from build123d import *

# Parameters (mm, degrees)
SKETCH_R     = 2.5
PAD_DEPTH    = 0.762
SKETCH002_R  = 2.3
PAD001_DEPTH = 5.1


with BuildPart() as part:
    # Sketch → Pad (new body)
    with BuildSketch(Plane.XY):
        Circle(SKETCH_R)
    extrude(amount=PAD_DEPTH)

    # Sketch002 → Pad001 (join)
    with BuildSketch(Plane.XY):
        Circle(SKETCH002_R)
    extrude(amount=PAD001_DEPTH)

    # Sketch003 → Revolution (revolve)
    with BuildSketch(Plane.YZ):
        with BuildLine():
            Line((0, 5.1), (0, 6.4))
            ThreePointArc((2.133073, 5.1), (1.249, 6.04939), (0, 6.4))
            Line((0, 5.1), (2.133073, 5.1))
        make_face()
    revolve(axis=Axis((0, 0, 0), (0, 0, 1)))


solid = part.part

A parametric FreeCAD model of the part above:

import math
import FreeCAD as App
import Part
import Sketcher

V = App.Vector

doc = App.newDocument("Part")
body = doc.addObject("PartDesign::Body", "Body")

# Sketch on XY plane
sketch1 = body.newObject("Sketcher::SketchObject", "Sketch")
sketch1.AttachmentSupport = (doc.getObject("XY_Plane"), [""])
sketch1.MapMode = "FlatFace"
sketch1.addGeometry(Part.Circle(V(0, 0, 0), V(0, 0, 1), 2.5), False)
sketch1.addConstraint(Sketcher.Constraint("Coincident", 0, 3, -1, 1))
sketch1.addConstraint(Sketcher.Constraint("Diameter", 0, 5.0))
pad1 = body.newObject("PartDesign::Pad", "Pad")
pad1.Profile = sketch1
pad1.Length = 0.762

# Sketch on XY plane
sketch2 = body.newObject("Sketcher::SketchObject", "Sketch001")
sketch2.AttachmentSupport = (doc.getObject("XY_Plane"), [""])
sketch2.MapMode = "FlatFace"
sketch2.addGeometry(Part.Circle(V(0, 0, 0), V(0, 0, 1), 2.3), False)
sketch2.addConstraint(Sketcher.Constraint("Coincident", 0, 3, -1, 1))
sketch2.addConstraint(Sketcher.Constraint("Diameter", 0, 4.6))
pad2 = body.newObject("PartDesign::Pad", "Pad001")
pad2.Profile = sketch2
pad2.Length = 5.1

# Sketch on YZ plane
sketch3 = body.newObject("Sketcher::SketchObject", "Sketch002")
sketch3.AttachmentSupport = (doc.getObject("YZ_Plane"), [""])
sketch3.MapMode = "FlatFace"
sketch3.addGeometry(Part.LineSegment(V(0, 6.4, 0), V(0, 5.1, 0)), False)
sketch3.addGeometry(Part.LineSegment(V(0, 5.1, 0), V(2.1, 5.1, 0)), False)
sketch3.addGeometry(Part.ArcOfCircle(Part.Circle(V(0, 4, 0), V(0, 0, 1), 2.4), math.radians(27), math.radians(90)), False)
sketch3.addConstraint(Sketcher.Constraint("Coincident", 0, 2, 1, 1))
sketch3.addConstraint(Sketcher.Constraint("Coincident", 1, 2, 2, 1))
sketch3.addConstraint(Sketcher.Constraint("Coincident", 2, 2, 0, 1))
sketch3.addConstraint(Sketcher.Constraint("Vertical", 0))
sketch3.addConstraint(Sketcher.Constraint("Horizontal", 1))
sketch3.addConstraint(Sketcher.Constraint("PointOnObject", 2, 3, -2))
sketch3.addConstraint(Sketcher.Constraint("PointOnObject", 0, 2, -2))
sketch3.addConstraint(Sketcher.Constraint("Radius", 2, 2.4))
sketch3.addConstraint(Sketcher.Constraint("DistanceY", 0, 2, 0, 1, 1.3))
sketch3.addConstraint(Sketcher.Constraint("DistanceY", -1, 1, 2, 3, 4.0))
revolution = body.newObject("PartDesign::Revolution", "Revolution")
revolution.Profile = sketch3
revolution.ReferenceAxis = (sketch3, ["V_Axis"])
revolution.Angle = 360

doc.recompute()
